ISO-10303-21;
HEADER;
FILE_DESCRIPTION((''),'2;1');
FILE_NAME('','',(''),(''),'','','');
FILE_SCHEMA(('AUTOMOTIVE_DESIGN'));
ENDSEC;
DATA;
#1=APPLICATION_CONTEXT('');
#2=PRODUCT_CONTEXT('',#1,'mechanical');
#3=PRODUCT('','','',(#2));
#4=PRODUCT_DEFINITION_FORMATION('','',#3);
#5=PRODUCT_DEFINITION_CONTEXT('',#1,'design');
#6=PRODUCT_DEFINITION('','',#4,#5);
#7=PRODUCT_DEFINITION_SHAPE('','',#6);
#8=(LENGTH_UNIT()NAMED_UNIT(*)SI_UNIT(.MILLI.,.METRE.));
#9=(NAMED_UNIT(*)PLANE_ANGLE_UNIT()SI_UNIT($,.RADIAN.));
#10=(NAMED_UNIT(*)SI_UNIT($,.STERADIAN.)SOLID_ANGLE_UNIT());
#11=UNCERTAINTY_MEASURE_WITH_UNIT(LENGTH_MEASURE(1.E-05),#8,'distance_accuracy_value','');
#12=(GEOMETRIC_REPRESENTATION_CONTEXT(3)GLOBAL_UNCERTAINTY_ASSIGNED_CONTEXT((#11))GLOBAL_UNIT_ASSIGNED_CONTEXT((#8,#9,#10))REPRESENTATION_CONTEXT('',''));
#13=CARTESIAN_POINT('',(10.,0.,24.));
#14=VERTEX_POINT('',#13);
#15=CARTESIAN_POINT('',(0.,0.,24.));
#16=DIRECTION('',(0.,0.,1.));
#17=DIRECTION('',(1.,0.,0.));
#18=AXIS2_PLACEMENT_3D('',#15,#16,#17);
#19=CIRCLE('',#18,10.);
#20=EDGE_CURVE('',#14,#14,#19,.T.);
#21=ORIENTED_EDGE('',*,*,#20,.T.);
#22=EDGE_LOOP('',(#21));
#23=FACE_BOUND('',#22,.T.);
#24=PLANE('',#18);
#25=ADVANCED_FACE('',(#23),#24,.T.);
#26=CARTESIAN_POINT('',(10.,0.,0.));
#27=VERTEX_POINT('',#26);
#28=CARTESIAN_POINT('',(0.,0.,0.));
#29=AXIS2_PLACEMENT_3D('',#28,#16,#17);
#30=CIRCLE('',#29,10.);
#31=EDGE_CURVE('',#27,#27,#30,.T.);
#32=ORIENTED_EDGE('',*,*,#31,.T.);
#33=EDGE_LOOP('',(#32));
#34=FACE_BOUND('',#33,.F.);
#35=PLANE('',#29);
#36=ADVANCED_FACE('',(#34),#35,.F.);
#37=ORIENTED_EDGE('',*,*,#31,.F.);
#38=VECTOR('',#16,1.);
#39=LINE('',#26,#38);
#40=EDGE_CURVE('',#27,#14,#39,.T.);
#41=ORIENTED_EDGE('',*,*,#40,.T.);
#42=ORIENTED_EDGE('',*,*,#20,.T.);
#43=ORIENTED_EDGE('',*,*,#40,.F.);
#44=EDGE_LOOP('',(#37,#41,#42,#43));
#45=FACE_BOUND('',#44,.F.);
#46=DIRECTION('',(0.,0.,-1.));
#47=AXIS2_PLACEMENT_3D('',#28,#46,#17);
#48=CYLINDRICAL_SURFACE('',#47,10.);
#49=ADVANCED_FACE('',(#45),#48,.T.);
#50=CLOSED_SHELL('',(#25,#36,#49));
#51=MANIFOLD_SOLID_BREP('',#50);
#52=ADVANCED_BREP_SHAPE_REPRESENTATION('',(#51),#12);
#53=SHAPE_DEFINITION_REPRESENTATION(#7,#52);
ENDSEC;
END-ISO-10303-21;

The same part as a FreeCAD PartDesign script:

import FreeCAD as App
import Part
import Sketcher

V = App.Vector
Q = App.Units.Quantity

doc = App.newDocument("Part")
body = doc.addObject("PartDesign::Body", "Body")

sketch1 = doc.addObject("Sketcher::SketchObject", "Sketch")
body.addObject(sketch1)
sketch1.AttachmentSupport = (doc.XY_Plane, [""])
sketch1.MapMode = "FlatFace"
sketch1.addGeometry(Part.Circle(V(0, 0, 0), V(0, 0, 1), 10), False)
sketch1.addConstraint([
    Sketcher.Constraint("Coincident", 0, 3, -1, 1),
    Sketcher.Constraint("Diameter", 0, Q("20 mm")),
])
pad1 = doc.addObject("PartDesign::Pad", "Pad")
body.addObject(pad1)
pad1.Profile = sketch1
pad1.Length = 24

doc.recompute()
